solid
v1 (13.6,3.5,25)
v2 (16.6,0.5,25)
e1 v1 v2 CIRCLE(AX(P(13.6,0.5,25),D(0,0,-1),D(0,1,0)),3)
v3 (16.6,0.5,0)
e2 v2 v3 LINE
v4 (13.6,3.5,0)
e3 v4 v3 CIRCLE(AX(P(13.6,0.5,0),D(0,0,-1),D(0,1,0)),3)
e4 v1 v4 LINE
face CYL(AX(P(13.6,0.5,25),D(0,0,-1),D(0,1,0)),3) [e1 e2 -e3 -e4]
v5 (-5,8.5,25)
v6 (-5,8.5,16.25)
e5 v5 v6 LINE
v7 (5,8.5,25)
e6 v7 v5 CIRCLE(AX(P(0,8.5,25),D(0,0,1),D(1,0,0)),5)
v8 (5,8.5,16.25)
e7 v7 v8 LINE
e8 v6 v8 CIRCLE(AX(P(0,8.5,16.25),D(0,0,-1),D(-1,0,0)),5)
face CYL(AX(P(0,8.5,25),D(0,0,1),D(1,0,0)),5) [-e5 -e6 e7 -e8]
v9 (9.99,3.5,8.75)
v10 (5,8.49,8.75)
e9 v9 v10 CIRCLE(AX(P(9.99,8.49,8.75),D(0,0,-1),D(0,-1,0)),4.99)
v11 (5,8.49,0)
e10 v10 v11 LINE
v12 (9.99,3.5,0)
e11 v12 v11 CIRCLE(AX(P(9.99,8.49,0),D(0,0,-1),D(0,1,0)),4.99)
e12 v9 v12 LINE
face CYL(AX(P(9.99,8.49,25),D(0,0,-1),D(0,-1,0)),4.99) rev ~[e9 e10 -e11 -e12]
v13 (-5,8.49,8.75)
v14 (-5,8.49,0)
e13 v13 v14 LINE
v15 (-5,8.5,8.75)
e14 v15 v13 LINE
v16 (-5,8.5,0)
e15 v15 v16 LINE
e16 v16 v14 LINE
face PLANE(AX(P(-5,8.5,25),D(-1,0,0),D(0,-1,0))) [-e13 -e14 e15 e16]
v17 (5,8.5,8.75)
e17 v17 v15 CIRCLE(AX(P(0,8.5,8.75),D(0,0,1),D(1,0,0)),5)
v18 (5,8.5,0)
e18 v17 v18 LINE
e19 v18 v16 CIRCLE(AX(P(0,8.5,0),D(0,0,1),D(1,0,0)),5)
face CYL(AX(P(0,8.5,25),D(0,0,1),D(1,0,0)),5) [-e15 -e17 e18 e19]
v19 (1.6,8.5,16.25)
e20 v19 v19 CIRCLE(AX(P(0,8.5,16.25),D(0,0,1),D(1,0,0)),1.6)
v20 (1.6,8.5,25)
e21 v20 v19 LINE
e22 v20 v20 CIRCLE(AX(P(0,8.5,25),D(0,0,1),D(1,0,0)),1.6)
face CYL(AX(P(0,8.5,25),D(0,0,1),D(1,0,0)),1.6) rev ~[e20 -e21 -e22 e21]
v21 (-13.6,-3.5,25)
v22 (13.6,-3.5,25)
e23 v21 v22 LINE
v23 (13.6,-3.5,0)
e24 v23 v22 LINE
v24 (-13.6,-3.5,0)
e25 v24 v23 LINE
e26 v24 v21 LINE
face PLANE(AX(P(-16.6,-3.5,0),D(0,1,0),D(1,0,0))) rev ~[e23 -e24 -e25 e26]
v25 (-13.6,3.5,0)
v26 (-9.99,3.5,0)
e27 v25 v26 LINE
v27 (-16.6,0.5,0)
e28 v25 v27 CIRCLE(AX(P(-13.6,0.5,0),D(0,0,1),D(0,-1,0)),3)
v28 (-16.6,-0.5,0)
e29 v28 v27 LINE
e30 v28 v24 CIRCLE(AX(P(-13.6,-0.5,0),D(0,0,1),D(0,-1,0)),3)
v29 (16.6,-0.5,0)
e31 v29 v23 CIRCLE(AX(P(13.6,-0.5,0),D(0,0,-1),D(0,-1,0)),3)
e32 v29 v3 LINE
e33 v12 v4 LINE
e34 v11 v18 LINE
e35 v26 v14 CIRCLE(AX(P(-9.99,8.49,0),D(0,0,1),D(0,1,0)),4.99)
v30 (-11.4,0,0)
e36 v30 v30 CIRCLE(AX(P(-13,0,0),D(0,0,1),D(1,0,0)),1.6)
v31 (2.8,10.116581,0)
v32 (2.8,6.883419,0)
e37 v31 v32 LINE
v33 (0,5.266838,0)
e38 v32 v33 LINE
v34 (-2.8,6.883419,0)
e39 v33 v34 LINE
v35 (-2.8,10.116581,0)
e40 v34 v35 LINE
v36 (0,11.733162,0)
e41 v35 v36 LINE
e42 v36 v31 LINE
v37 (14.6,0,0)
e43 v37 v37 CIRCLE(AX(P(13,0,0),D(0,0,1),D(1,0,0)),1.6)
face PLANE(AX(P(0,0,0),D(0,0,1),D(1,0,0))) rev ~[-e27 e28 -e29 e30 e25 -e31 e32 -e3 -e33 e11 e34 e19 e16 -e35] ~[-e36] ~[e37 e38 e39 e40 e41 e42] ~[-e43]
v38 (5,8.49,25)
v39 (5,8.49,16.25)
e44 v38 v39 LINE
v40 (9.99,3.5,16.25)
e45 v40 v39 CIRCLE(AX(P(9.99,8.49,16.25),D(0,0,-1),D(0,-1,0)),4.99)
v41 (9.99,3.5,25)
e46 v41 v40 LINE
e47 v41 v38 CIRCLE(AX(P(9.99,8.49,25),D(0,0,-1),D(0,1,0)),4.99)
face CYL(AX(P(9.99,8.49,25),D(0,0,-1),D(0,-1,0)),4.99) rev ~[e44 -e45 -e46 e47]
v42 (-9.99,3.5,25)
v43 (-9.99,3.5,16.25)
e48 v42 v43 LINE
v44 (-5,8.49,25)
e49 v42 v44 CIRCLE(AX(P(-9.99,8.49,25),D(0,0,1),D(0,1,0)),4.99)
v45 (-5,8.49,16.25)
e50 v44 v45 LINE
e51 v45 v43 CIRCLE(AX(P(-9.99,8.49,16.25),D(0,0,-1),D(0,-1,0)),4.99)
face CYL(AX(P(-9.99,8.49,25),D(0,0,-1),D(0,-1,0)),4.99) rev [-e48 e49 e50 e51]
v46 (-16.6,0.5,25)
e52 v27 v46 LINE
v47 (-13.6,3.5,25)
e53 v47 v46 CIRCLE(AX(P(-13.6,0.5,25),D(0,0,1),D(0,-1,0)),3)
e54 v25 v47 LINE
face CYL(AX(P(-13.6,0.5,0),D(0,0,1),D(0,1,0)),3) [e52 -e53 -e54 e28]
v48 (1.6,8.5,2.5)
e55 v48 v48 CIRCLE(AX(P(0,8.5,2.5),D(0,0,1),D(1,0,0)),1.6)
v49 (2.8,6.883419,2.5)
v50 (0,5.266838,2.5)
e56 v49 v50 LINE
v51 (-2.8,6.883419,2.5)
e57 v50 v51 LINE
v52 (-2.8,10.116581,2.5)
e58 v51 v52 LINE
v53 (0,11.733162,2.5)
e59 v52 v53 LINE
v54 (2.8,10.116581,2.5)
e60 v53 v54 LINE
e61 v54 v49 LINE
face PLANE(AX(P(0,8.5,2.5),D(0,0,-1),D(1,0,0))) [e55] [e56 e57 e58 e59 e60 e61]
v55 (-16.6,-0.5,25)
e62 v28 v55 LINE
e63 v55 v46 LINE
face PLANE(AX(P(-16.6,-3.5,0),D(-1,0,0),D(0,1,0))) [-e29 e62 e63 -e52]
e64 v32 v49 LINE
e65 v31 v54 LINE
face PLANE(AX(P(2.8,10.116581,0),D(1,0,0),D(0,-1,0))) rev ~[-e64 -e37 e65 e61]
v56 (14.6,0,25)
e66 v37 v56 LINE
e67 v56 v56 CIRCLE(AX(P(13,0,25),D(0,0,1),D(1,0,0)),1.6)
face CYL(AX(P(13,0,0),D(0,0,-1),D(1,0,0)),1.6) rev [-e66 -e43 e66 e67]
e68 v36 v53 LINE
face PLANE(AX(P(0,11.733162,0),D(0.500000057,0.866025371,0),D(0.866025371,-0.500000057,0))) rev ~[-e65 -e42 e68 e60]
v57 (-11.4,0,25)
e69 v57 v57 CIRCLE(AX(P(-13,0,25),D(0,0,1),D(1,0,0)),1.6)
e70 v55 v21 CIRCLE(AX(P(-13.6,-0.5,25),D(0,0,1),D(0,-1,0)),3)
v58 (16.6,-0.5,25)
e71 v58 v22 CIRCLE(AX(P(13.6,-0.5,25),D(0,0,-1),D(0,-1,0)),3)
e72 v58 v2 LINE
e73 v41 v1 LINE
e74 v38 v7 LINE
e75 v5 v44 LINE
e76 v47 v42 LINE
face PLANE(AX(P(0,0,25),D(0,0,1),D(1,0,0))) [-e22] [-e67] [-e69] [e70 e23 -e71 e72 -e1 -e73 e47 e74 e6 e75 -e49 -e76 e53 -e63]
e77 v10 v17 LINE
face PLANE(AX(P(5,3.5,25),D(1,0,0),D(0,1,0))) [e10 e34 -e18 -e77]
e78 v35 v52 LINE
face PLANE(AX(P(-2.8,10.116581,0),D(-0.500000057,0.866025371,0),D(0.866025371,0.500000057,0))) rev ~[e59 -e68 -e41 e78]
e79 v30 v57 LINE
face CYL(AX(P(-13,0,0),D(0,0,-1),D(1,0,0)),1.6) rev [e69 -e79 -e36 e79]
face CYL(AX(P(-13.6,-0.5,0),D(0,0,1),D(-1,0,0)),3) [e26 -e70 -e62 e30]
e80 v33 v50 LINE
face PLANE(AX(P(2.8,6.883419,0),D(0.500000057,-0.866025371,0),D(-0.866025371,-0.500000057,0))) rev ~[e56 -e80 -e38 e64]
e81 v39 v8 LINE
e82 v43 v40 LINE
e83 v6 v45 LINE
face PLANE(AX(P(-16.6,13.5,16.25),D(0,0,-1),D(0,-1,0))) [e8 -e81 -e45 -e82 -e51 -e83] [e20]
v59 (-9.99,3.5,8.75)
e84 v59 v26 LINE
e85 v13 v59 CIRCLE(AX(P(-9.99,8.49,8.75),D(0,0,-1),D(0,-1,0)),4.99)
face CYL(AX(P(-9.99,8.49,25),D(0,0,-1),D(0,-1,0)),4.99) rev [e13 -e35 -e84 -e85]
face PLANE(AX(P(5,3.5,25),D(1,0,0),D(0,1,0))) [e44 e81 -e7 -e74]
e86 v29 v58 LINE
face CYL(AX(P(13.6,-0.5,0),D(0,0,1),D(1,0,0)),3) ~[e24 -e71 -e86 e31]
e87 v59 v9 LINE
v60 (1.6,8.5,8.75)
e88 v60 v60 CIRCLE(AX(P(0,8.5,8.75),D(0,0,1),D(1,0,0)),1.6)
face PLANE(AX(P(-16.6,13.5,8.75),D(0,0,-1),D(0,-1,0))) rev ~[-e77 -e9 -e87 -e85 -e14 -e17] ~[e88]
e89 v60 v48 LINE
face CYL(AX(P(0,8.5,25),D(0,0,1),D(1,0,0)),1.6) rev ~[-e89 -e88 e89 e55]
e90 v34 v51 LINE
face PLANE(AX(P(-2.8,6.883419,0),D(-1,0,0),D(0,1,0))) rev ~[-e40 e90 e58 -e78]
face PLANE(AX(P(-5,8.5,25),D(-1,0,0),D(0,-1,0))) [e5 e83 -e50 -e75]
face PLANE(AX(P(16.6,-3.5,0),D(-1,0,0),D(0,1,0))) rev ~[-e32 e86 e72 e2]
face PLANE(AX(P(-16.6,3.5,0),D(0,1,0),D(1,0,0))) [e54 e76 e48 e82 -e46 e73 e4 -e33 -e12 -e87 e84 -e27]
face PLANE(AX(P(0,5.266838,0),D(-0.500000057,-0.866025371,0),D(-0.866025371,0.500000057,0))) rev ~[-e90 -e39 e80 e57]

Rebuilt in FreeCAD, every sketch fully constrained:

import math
import FreeCAD as App
import Part
import Sketcher

V = App.Vector
Q = App.Units.Quantity


def edges_at(feature, points):
    """Names of the edges that pass closest to the given points."""
    edges = feature.Shape.Edges
    near = lambda p: min(range(len(edges)), key=lambda i: edges[i].distToShape(Part.Vertex(*p))[0])
    return sorted({f"Edge{near(p) + 1}" for p in points})

doc = App.newDocument("Part")
body = doc.addObject("PartDesign::Body", "Body")

sketch1 = body.newObject("Sketcher::SketchObject", "Sketch")
sketch1.AttachmentSupport = (doc.getObject("XY_Plane"), [""])
sketch1.MapMode = "FlatFace"
sketch1.addGeometry(Part.LineSegment(V(-16.6, 3.5, 0), V(-16.6, -3.5, 0)), False)
sketch1.addGeometry(Part.LineSegment(V(-16.6, -3.5, 0), V(16.6, -3.5, 0)), False)
sketch1.addGeometry(Part.LineSegment(V(16.6, -3.5, 0), V(16.6, 3.5, 0)), False)
sketch1.addGeometry(Part.LineSegment(V(16.6, 3.5, 0), V(-16.6, 3.5, 0)), False)
sketch1.addGeometry(Part.Circle(V(-13, 0, 0), V(0, 0, 1), 1.6), False)
sketch1.addGeometry(Part.Circle(V(13, 0, 0), V(0, 0, 1), 1.6), False)
sketch1.addConstraint(Sketcher.Constraint("Coincident", 0, 2, 1, 1))
sketch1.addConstraint(Sketcher.Constraint("Coincident", 1, 2, 2, 1))
sketch1.addConstraint(Sketcher.Constraint("Coincident", 2, 2, 3, 1))
sketch1.addConstraint(Sketcher.Constraint("Coincident", 3, 2, 0, 1))
sketch1.addConstraint(Sketcher.Constraint("Vertical", 0))
sketch1.addConstraint(Sketcher.Constraint("Horizontal", 1))
sketch1.addConstraint(Sketcher.Constraint("Vertical", 2))
sketch1.addConstraint(Sketcher.Constraint("Horizontal", 3))
sketch1.addConstraint(Sketcher.Constraint("Equal", 4, 5))
sketch1.addConstraint(Sketcher.Constraint("Symmetric", 4, 3, 5, 3, -1, 1))
sketch1.addConstraint(Sketcher.Constraint("Symmetric", 0, 2, 2, 2, -1, 1))
sketch1.addConstraint(Sketcher.Constraint("PointOnObject", 4, 3, -1))
sketch1.addConstraint(Sketcher.Constraint("Diameter", 4, 3.2))
sketch1.addConstraint(Sketcher.Constraint("DistanceY", 0, 2, 0, 1, 7.0))
sketch1.addConstraint(Sketcher.Constraint("DistanceX", 1, 1, 1, 2, 33.2))
sketch1.addConstraint(Sketcher.Constraint("DistanceX", 4, 3, -1, 1, 13.0))
pad1 = body.newObject("PartDesign::Pad", "Pad")
pad1.Profile = sketch1
pad1.Length = 25

sketch2 = body.newObject("Sketcher::SketchObject", "Sketch001")
sketch2.AttachmentSupport = (doc.getObject("XY_Plane"), [""])
sketch2.MapMode = "FlatFace"
sketch2.AttachmentOffset = App.Placement(V(0, 0, 25), App.Rotation())
sketch2.addGeometry(Part.ArcOfCircle(Part.Circle(V(0, 8.5, 0), V(0, 0, 1), 5), math.radians(0), math.radians(180)), False)
sketch2.addGeometry(Part.LineSegment(V(-5, 8.5, 0), V(-5, 3.5, 0)), False)
sketch2.addGeometry(Part.LineSegment(V(-5, 3.5, 0), V(5, 3.5, 0)), False)
sketch2.addGeometry(Part.LineSegment(V(5, 3.5, 0), V(5, 8.5, 0)), False)
sketch2.addGeometry(Part.Circle(V(0, 8.5, 0), V(0, 0, 1), 1.6), False)
sketch2.addConstraint(Sketcher.Constraint("Tangent", 0, 2, 1, 1))
sketch2.addConstraint(Sketcher.Constraint("Coincident", 1, 2, 2, 1))
sketch2.addConstraint(Sketcher.Constraint("Coincident", 2, 2, 3, 1))
sketch2.addConstraint(Sketcher.Constraint("Tangent", 3, 2, 0, 1))
sketch2.addConstraint(Sketcher.Constraint("Vertical", 1))
sketch2.addConstraint(Sketcher.Constraint("Horizontal", 2))
sketch2.addConstraint(Sketcher.Constraint("Vertical", 3))
sketch2.addConstraint(Sketcher.Constraint("Coincident", 4, 3, 0, 3))
sketch2.addConstraint(Sketcher.Constraint("PointOnObject", 0, 3, -2))
sketch2.addConstraint(Sketcher.Constraint("Radius", 0, 5.0))
sketch2.addConstraint(Sketcher.Constraint("Diameter", 4, 3.2))
sketch2.addConstraint(Sketcher.Constraint("DistanceY", 1, 2, 1, 1, 5.0))
sketch2.addConstraint(Sketcher.Constraint("DistanceY", -1, 1, 0, 3, 8.5))
pad2 = body.newObject("PartDesign::Pad", "Pad001")
pad2.Profile = sketch2
pad2.Length = 25
pad2.Reversed = True
doc.recompute()

fillet = body.newObject("PartDesign::Fillet", "Fillet")
fillet.Base = (pad2, edges_at(pad2, [(-5, 3.5, 12.5), (5, 3.5, 12.5)]))
fillet.Radius = 4.99

sketch3 = body.newObject("Sketcher::SketchObject", "Sketch002")
sketch3.AttachmentSupport = (doc.getObject("YZ_Plane"), [""])
sketch3.MapMode = "FlatFace"
sketch3.AttachmentOffset = App.Placement(V(0, 0, -16.6), App.Rotation())
sketch3.addGeometry(Part.LineSegment(V(13.5, 16.25, 0), V(13.5, 8.75, 0)), False)
sketch3.addGeometry(Part.LineSegment(V(13.5, 8.75, 0), V(3.5, 8.75, 0)), False)
sketch3.addGeometry(Part.LineSegment(V(3.5, 8.75, 0), V(3.5, 16.25, 0)), False)
sketch3.addGeometry(Part.LineSegment(V(3.5, 16.25, 0), V(13.5, 16.25, 0)), False)
sketch3.addConstraint(Sketcher.Constraint("Coincident", 0, 2, 1, 1))
sketch3.addConstraint(Sketcher.Constraint("Coincident", 1, 2, 2, 1))
sketch3.addConstraint(Sketcher.Constraint("Coincident", 2, 2, 3, 1))
sketch3.addConstraint(Sketcher.Constraint("Coincident", 3, 2, 0, 1))
sketch3.addConstraint(Sketcher.Constraint("Vertical", 0))
sketch3.addConstraint(Sketcher.Constraint("Horizontal", 1))
sketch3.addConstraint(Sketcher.Constraint("Vertical", 2))
sketch3.addConstraint(Sketcher.Constraint("Horizontal", 3))
sketch3.addConstraint(Sketcher.Constraint("DistanceX", 1, 2, 1, 1, 10.0))
sketch3.addConstraint(Sketcher.Constraint("DistanceY", 0, 2, 0, 1, 7.5))
sketch3.addConstraint(Sketcher.Constraint("DistanceX", -1, 1, 0, 2, 13.5))
sketch3.addConstraint(Sketcher.Constraint("DistanceY", -1, 1, 0, 2, 8.75))
pocket1 = body.newObject("PartDesign::Pocket", "Pocket")
pocket1.Profile = sketch3
pocket1.Type = "ThroughAll"
pocket1.Reversed = True

sketch4 = body.newObject("Sketcher::SketchObject", "Sketch003")
sketch4.AttachmentSupport = (doc.getObject("XY_Plane"), [""])
sketch4.MapMode = "FlatFace"
sketch4.addGeometry(Part.LineSegment(V(2.8, 6.883419, 0), V(0, 5.266838, 0)), False)
sketch4.addGeometry(Part.LineSegment(V(0, 5.266838, 0), V(-2.8, 6.883419, 0)), False)
sketch4.addGeometry(Part.LineSegment(V(-2.8, 6.883419, 0), V(-2.8, 10.116581, 0)), False)
sketch4.addGeometry(Part.LineSegment(V(-2.8, 10.116581, 0), V(0, 11.733162, 0)), False)
sketch4.addGeometry(Part.LineSegment(V(0, 11.733162, 0), V(2.8, 10.116581, 0)), False)
sketch4.addGeometry(Part.LineSegment(V(2.8, 10.116581, 0), V(2.8, 6.883419, 0)), False)
sketch4.addConstraint(Sketcher.Constraint("Coincident", 0, 2, 1, 1))
sketch4.addConstraint(Sketcher.Constraint("Coincident", 1, 2, 2, 1))
sketch4.addConstraint(Sketcher.Constraint("Coincident", 2, 2, 3, 1))
sketch4.addConstraint(Sketcher.Constraint("Coincident", 3, 2, 4, 1))
sketch4.addConstraint(Sketcher.Constraint("Coincident", 4, 2, 5, 1))
sketch4.addConstraint(Sketcher.Constraint("Coincident", 5, 2, 0, 1))
sketch4.addConstraint(Sketcher.Constraint("Vertical", 2))
sketch4.addConstraint(Sketcher.Constraint("Vertical", 5))
sketch4.addConstraint(Sketcher.Constraint("Symmetric", 2, 2, 4, 2, -2))
sketch4.addConstraint(Sketcher.Constraint("PointOnObject", 0, 2, -2))
sketch4.addConstraint(Sketcher.Constraint("PointOnObject", 3, 2, -2))
sketch4.addConstraint(Sketcher.Constraint("Parallel", 0, 3))
sketch4.addConstraint(Sketcher.Constraint("Parallel", 1, 4))
sketch4.addConstraint(Sketcher.Constraint("Angle", 0, Q("-149.999996 deg")))
sketch4.addConstraint(Sketcher.Constraint("DistanceX", 1, 2, -1, 1, 2.8))
sketch4.addConstraint(Sketcher.Constraint("DistanceY", 2, 1, 2, 2, 3.233162))
sketch4.addConstraint(Sketcher.Constraint("DistanceY", -1, 1, 1, 2, 6.883419))
pocket2 = body.newObject("PartDesign::Pocket", "Pocket001")
pocket2.Profile = sketch4
pocket2.Length = 2.5
pocket2.Reversed = True
doc.recompute()

fillet2 = body.newObject("PartDesign::Fillet", "Fillet001")
fillet2.Base = (pocket2, edges_at(pocket2, [
    (16.6, 3.5, 12.5),
    (16.6, -3.5, 12.5),
    (-16.6, 3.5, 12.5),
    (-16.6, -3.5, 12.5),
]))
fillet2.Radius = 3

doc.recompute()
